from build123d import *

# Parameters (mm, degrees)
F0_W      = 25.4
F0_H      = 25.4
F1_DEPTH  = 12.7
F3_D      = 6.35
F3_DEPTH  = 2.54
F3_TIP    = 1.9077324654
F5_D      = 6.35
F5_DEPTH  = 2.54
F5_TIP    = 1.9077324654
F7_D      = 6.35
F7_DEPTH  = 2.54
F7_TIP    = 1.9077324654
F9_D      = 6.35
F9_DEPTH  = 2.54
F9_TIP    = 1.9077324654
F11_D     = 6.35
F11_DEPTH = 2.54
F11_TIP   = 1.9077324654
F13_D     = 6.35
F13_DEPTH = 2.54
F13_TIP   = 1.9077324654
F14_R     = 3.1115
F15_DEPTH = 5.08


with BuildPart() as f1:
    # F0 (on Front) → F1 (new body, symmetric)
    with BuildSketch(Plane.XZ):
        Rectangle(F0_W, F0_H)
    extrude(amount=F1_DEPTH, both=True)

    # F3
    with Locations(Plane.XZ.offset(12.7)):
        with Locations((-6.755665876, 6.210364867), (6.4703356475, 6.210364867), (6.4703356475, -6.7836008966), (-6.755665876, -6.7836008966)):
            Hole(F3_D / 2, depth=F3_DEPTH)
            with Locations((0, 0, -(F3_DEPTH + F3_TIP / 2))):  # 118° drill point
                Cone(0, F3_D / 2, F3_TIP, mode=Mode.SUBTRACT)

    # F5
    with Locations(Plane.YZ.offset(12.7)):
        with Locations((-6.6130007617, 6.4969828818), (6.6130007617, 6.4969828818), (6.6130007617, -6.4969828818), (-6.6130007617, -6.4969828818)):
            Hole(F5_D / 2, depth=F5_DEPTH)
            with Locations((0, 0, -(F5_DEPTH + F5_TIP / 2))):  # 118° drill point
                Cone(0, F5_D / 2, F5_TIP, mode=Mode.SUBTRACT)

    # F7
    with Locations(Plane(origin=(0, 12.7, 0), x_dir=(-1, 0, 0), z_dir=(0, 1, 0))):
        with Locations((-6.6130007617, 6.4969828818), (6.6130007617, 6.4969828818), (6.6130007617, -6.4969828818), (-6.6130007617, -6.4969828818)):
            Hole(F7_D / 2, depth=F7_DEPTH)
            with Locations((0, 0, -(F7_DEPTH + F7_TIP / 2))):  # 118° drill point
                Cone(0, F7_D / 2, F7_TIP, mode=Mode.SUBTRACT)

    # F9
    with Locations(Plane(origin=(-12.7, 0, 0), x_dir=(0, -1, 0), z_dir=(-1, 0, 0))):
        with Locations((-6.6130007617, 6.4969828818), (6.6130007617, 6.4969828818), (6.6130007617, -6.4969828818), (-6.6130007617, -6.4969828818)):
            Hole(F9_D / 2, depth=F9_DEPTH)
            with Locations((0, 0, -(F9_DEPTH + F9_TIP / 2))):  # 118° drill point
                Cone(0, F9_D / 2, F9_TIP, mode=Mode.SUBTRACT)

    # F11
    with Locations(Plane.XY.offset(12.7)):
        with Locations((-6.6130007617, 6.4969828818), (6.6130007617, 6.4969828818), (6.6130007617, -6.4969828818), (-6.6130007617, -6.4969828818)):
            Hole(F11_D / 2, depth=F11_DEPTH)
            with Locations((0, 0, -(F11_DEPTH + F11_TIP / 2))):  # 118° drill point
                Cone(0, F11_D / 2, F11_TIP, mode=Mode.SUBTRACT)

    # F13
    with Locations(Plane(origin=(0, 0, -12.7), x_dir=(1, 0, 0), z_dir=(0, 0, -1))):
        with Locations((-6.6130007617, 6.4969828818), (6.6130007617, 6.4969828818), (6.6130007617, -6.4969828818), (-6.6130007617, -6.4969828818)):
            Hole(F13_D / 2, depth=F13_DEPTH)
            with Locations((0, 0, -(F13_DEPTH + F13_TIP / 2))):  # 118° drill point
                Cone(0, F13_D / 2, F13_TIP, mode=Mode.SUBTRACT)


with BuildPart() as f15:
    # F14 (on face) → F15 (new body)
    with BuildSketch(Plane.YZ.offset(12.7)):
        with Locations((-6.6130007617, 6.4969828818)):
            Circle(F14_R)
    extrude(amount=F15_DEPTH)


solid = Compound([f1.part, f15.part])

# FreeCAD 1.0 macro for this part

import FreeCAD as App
import Part
import Sketcher

V = App.Vector
Q = App.Units.Quantity

doc = App.newDocument("Part")
params = doc.addObject("Spreadsheet::Sheet", "Params")
for row, (alias, value) in enumerate([
    ("sketch1_width", "1 in"),
    ("pad1_length", "1 in"),
    ("sketch2_diameter", "0.25 in"),
    ("hole_diameter", "0.25 in"),
    ("hole_depth", "0.1 in"),
    ("sketch3_diameter", "0.25 in"),
    ("hole2_diameter", "0.25 in"),
    ("hole2_depth", "0.1 in"),
    ("sketch4_diameter", "0.25 in"),
    ("hole3_diameter", "0.25 in"),
    ("hole3_depth", "0.1 in"),
    ("sketch5_diameter", "0.25 in"),
    ("hole4_diameter", "0.25 in"),
    ("hole4_depth", "0.1 in"),
    ("sketch6_diameter", "0.25 in"),
    ("hole5_diameter", "0.25 in"),
    ("hole5_depth", "0.1 in"),
    ("sketch7_diameter", "0.25 in"),
    ("hole6_diameter", "0.25 in"),
    ("hole6_depth", "0.1 in"),
    ("sketch8_diameter", "0.245 in"),
    ("pad2_length", "0.2 in"),
], start=1):
    params.set(f"A{row}", alias)
    params.set(f"B{row}", "=" + value)
    params.setAlias(f"B{row}", alias)

body = doc.addObject("PartDesign::Body", "Body")

# Sketch on XZ plane
sketch1 = body.newObject("Sketcher::SketchObject", "Sketch")
sketch1.AttachmentSupport = (doc.getObject("XZ_Plane"), [""])
sketch1.MapMode = "FlatFace"
sketch1.addGeometry([
    Part.LineSegment(V(-13, 13, 0), V(-13, -13, 0)),
    Part.LineSegment(V(-13, -13, 0), V(13, -13, 0)),
    Part.LineSegment(V(13, -13, 0), V(13, 13, 0)),
    Part.LineSegment(V(13, 13, 0), V(-13, 13, 0)),
], False)
sketch1.addConstraint([
    Sketcher.Constraint("Coincident", 0, 2, 1, 1),
    Sketcher.Constraint("Coincident", 1, 2, 2, 1),
    Sketcher.Constraint("Coincident", 2, 2, 3, 1),
    Sketcher.Constraint("Coincident", 3, 2, 0, 1),
    Sketcher.Constraint("Vertical", 0),
    Sketcher.Constraint("Horizontal", 1),
    Sketcher.Constraint("Vertical", 2),
    Sketcher.Constraint("Horizontal", 3),
    Sketcher.Constraint("Symmetric", 0, 2, 2, 2, -1, 1),
    Sketcher.Constraint("Equal", 3, 0),
    Sketcher.Constraint("DistanceX", 1, 1, 1, 2, Q("1 in")),
])
sketch1.setExpression("Constraints[10]", "Params.sketch1_width")
pad1 = body.newObject("PartDesign::Pad", "Pad")
pad1.Profile = sketch1
pad1.setExpression("Length", "Params.pad1_length")
pad1.Midplane = True

# Sketch on XZ plane
sketch2 = body.newObject("Sketcher::SketchObject", "Sketch001")
sketch2.AttachmentSupport = (doc.getObject("XZ_Plane"), [""])
sketch2.MapMode = "FlatFace"
sketch2.AttachmentOffset = App.Placement(V(0, 0, 0.5 * 25.4), App.Rotation())
sketch2.addGeometry([
    Part.Circle(V(-6.8, 6.2, 0), V(0, 0, 1), 3.2),
    Part.Circle(V(6.5, 6.2, 0), V(0, 0, 1), 3.2),
    Part.Circle(V(6.5, -6.8, 0), V(0, 0, 1), 3.2),
    Part.Circle(V(-6.8, -6.8, 0), V(0, 0, 1), 3.2),
], False)
sketch2.addConstraint([
    Sketcher.Constraint("Equal", 0, 1),
    Sketcher.Constraint("Equal", 1, 2),
    Sketcher.Constraint("Equal", 2, 3),
    Sketcher.Constraint("Horizontal", 0, 3, 1, 3),
    Sketcher.Constraint("Horizontal", 2, 3, 3, 3),
    Sketcher.Constraint("Vertical", 1, 3, 2, 3),
    Sketcher.Constraint("Vertical", 0, 3, 3, 3),
    Sketcher.Constraint("Diameter", 0, Q("0.25 in")),
    Sketcher.Constraint("DistanceY", 2, 3, -1, 1, 6.783601),
    Sketcher.Constraint("DistanceX", 0, 3, 1, 3, 13.226002),
    Sketcher.Constraint("DistanceX", 0, 3, -1, 1, 6.755666),
    Sketcher.Constraint("DistanceY", -1, 1, 0, 3, 6.210365),
])
sketch2.setExpression("Constraints[7]", "Params.sketch2_diameter")
doc.recompute()
hole = body.newObject("PartDesign::Hole", "Hole")
hole.Profile = sketch2
hole.ThreadType = "None"
hole.setExpression("Diameter", "Params.hole_diameter")
hole.DepthType = "Dimension"
hole.setExpression("Depth", "Params.hole_depth")
hole.DrillPoint = "Angled"
hole.DrillPointAngle = 118

# Sketch on YZ plane
sketch3 = body.newObject("Sketcher::SketchObject", "Sketch002")
sketch3.AttachmentSupport = (doc.getObject("YZ_Plane"), [""])
sketch3.MapMode = "FlatFace"
sketch3.AttachmentOffset = App.Placement(V(0, 0, 0.5 * 25.4), App.Rotation())
sketch3.addGeometry([
    Part.Circle(V(-6.6, 6.5, 0), V(0, 0, 1), 3.2),
    Part.Circle(V(6.6, 6.5, 0), V(0, 0, 1), 3.2),
    Part.Circle(V(6.6, -6.5, 0), V(0, 0, 1), 3.2),
    Part.Circle(V(-6.6, -6.5, 0), V(0, 0, 1), 3.2),
], False)
sketch3.addConstraint([
    Sketcher.Constraint("Equal", 0, 1),
    Sketcher.Constraint("Equal", 1, 2),
    Sketcher.Constraint("Equal", 2, 3),
    Sketcher.Constraint("Symmetric", 0, 3, 2, 3, -1, 1),
    Sketcher.Constraint("Symmetric", 1, 3, 3, 3, -1, 1),
    Sketcher.Constraint("Symmetric", 0, 3, 1, 3, -2),
    Sketcher.Constraint("Diameter", 0, Q("0.25 in")),
    Sketcher.Constraint("DistanceX", 0, 3, -1, 1, 6.613001),
    Sketcher.Constraint("DistanceY", -1, 1, 0, 3, 6.496983),
])
sketch3.setExpression("Constraints[6]", "Params.sketch3_diameter")
doc.recompute()
hole2 = body.newObject("PartDesign::Hole", "Hole001")
hole2.Profile = sketch3
hole2.ThreadType = "None"
hole2.setExpression("Diameter", "Params.hole2_diameter")
hole2.DepthType = "Dimension"
hole2.setExpression("Depth", "Params.hole2_depth")
hole2.DrillPoint = "Angled"
hole2.DrillPointAngle = 118

# Sketch on XZ plane
sketch4 = body.newObject("Sketcher::SketchObject", "Sketch003")
sketch4.AttachmentSupport = (doc.getObject("XZ_Plane"), [""])
sketch4.MapMode = "FlatFace"
sketch4.AttachmentOffset = App.Placement(V(0, 0, -0.5 * 25.4), App.Rotation())
sketch4.addGeometry([
    Part.Circle(V(6.6, 6.5, 0), V(0, 0, 1), 3.2),
    Part.Circle(V(-6.6, 6.5, 0), V(0, 0, 1), 3.2),
    Part.Circle(V(-6.6, -6.5, 0), V(0, 0, 1), 3.2),
    Part.Circle(V(6.6, -6.5, 0), V(0, 0, 1), 3.2),
], False)
sketch4.addConstraint([
    Sketcher.Constraint("Equal", 0, 1),
    Sketcher.Constraint("Equal", 1, 2),
    Sketcher.Constraint("Equal", 2, 3),
    Sketcher.Constraint("Symmetric", 0, 3, 2, 3, -1, 1),
    Sketcher.Constraint("Symmetric", 1, 3, 3, 3, -1, 1),
    Sketcher.Constraint("Symmetric", 0, 3, 1, 3, -2),
    Sketcher.Constraint("Diameter", 0, Q("0.25 in")),
    Sketcher.Constraint("DistanceX", -1, 1, 0, 3, 6.613001),
    Sketcher.Constraint("DistanceY", -1, 1, 0, 3, 6.496983),
])
sketch4.setExpression("Constraints[6]", "Params.sketch4_diameter")
doc.recompute()
hole3 = body.newObject("PartDesign::Hole", "Hole002")
hole3.Profile = sketch4
hole3.ThreadType = "None"
hole3.setExpression("Diameter", "Params.hole3_diameter")
hole3.DepthType = "Dimension"
hole3.setExpression("Depth", "Params.hole3_depth")
hole3.DrillPoint = "Angled"
hole3.DrillPointAngle = 118
hole3.Reversed = True

# Sketch on YZ plane
sketch5 = body.newObject("Sketcher::SketchObject", "Sketch004")
sketch5.AttachmentSupport = (doc.getObject("YZ_Plane"), [""])
sketch5.MapMode = "FlatFace"
sketch5.AttachmentOffset = App.Placement(V(0, 0, -0.5 * 25.4), App.Rotation())
sketch5.addGeometry([
    Part.Circle(V(6.6, 6.5, 0), V(0, 0, 1), 3.2),
    Part.Circle(V(-6.6, 6.5, 0), V(0, 0, 1), 3.2),
    Part.Circle(V(-6.6, -6.5, 0), V(0, 0, 1), 3.2),
    Part.Circle(V(6.6, -6.5, 0), V(0, 0, 1), 3.2),
], False)
sketch5.addConstraint([
    Sketcher.Constraint("Equal", 0, 1),
    Sketcher.Constraint("Equal", 1, 2),
    Sketcher.Constraint("Equal", 2, 3),
    Sketcher.Constraint("Symmetric", 0, 3, 2, 3, -1, 1),
    Sketcher.Constraint("Symmetric", 1, 3, 3, 3, -1, 1),
    Sketcher.Constraint("Symmetric", 0, 3, 1, 3, -2),
    Sketcher.Constraint("Diameter", 0, Q("0.25 in")),
    Sketcher.Constraint("DistanceX", -1, 1, 0, 3, 6.613001),
    Sketcher.Constraint("DistanceY", -1, 1, 0, 3, 6.496983),
])
sketch5.setExpression("Constraints[6]", "Params.sketch5_diameter")
doc.recompute()
hole4 = body.newObject("PartDesign::Hole", "Hole003")
hole4.Profile = sketch5
hole4.ThreadType = "None"
hole4.setExpression("Diameter", "Params.hole4_diameter")
hole4.DepthType = "Dimension"
hole4.setExpression("Depth", "Params.hole4_depth")
hole4.DrillPoint = "Angled"
hole4.DrillPointAngle = 118
hole4.Reversed = True

# Sketch on XY plane
sketch6 = body.newObject("Sketcher::SketchObject", "Sketch005")
sketch6.AttachmentSupport = (doc.getObject("XY_Plane"), [""])
sketch6.MapMode = "FlatFace"
sketch6.AttachmentOffset = App.Placement(V(0, 0, 0.5 * 25.4), App.Rotation())
sketch6.addGeometry([
    Part.Circle(V(-6.6, 6.5, 0), V(0, 0, 1), 3.2),
    Part.Circle(V(6.6, 6.5, 0), V(0, 0, 1), 3.2),
    Part.Circle(V(6.6, -6.5, 0), V(0, 0, 1), 3.2),
    Part.Circle(V(-6.6, -6.5, 0), V(0, 0, 1), 3.2),
], False)
sketch6.addConstraint([
    Sketcher.Constraint("Equal", 0, 1),
    Sketcher.Constraint("Equal", 1, 2),
    Sketcher.Constraint("Equal", 2, 3),
    Sketcher.Constraint("Symmetric", 0, 3, 2, 3, -1, 1),
    Sketcher.Constraint("Symmetric", 1, 3, 3, 3, -1, 1),
    Sketcher.Constraint("Symmetric", 0, 3, 1, 3, -2),
    Sketcher.Constraint("Diameter", 0, Q("0.25 in")),
    Sketcher.Constraint("DistanceX", 0, 3, -1, 1, 6.613001),
    Sketcher.Constraint("DistanceY", -1, 1, 0, 3, 6.496983),
])
sketch6.setExpression("Constraints[6]", "Params.sketch6_diameter")
doc.recompute()
hole5 = body.newObject("PartDesign::Hole", "Hole004")
hole5.Profile = sketch6
hole5.ThreadType = "None"
hole5.setExpression("Diameter", "Params.hole5_diameter")
hole5.DepthType = "Dimension"
hole5.setExpression("Depth", "Params.hole5_depth")
hole5.DrillPoint = "Angled"
hole5.DrillPointAngle = 118

# Sketch on XY plane
sketch7 = body.newObject("Sketcher::SketchObject", "Sketch006")
sketch7.AttachmentSupport = (doc.getObject("XY_Plane"), [""])
sketch7.MapMode = "FlatFace"
sketch7.AttachmentOffset = App.Placement(V(0, 0, -0.5 * 25.4), App.Rotation())
sketch7.addGeometry([
    Part.Circle(V(-6.6, -6.5, 0), V(0, 0, 1), 3.2),
    Part.Circle(V(6.6, -6.5, 0), V(0, 0, 1), 3.2),
    Part.Circle(V(6.6, 6.5, 0), V(0, 0, 1), 3.2),
    Part.Circle(V(-6.6, 6.5, 0), V(0, 0, 1), 3.2),
], False)
sketch7.addConstraint([
    Sketcher.Constraint("Equal", 0, 1),
    Sketcher.Constraint("Equal", 1, 2),
    Sketcher.Constraint("Equal", 2, 3),
    Sketcher.Constraint("Symmetric", 0, 3, 2, 3, -1, 1),
    Sketcher.Constraint("Symmetric", 1, 3, 3, 3, -1, 1),
    Sketcher.Constraint("Symmetric", 0, 3, 1, 3, -2),
    Sketcher.Constraint("Diameter", 0, Q("0.25 in")),
    Sketcher.Constraint("DistanceX", 0, 3, -1, 1, 6.613001),
    Sketcher.Constraint("DistanceY", 0, 3, -1, 1, 6.496983),
])
sketch7.setExpression("Constraints[6]", "Params.sketch7_diameter")
doc.recompute()
hole6 = body.newObject("PartDesign::Hole", "Hole005")
hole6.Profile = sketch7
hole6.ThreadType = "None"
hole6.setExpression("Diameter", "Params.hole6_diameter")
hole6.DepthType = "Dimension"
hole6.setExpression("Depth", "Params.hole6_depth")
hole6.DrillPoint = "Angled"
hole6.DrillPointAngle = 118
hole6.Reversed = True
body2 = doc.addObject("PartDesign::Body", "Body001")

# Sketch on YZ plane
sketch8 = body2.newObject("Sketcher::SketchObject", "Sketch007")
sketch8.AttachmentSupport = (doc.getObject("YZ_Plane001"), [""])
sketch8.MapMode = "FlatFace"
sketch8.AttachmentOffset = App.Placement(V(0, 0, 0.5 * 25.4), App.Rotation())
sketch8.addGeometry(Part.Circle(V(-6.6, 6.5, 0), V(0, 0, 1), 3.1), False)
sketch8.addConstraint([
    Sketcher.Constraint("Diameter", 0, Q("0.245 in")),
    Sketcher.Constraint("DistanceX", 0, 3, -1, 1, 6.613001),
    Sketcher.Constraint("DistanceY", -1, 1, 0, 3, 6.496983),
])
sketch8.setExpression("Constraints[0]", "Params.sketch8_diameter")
pad2 = body2.newObject("PartDesign::Pad", "Pad001")
pad2.Profile = sketch8
pad2.setExpression("Length", "Params.pad2_length")

doc.recompute()
